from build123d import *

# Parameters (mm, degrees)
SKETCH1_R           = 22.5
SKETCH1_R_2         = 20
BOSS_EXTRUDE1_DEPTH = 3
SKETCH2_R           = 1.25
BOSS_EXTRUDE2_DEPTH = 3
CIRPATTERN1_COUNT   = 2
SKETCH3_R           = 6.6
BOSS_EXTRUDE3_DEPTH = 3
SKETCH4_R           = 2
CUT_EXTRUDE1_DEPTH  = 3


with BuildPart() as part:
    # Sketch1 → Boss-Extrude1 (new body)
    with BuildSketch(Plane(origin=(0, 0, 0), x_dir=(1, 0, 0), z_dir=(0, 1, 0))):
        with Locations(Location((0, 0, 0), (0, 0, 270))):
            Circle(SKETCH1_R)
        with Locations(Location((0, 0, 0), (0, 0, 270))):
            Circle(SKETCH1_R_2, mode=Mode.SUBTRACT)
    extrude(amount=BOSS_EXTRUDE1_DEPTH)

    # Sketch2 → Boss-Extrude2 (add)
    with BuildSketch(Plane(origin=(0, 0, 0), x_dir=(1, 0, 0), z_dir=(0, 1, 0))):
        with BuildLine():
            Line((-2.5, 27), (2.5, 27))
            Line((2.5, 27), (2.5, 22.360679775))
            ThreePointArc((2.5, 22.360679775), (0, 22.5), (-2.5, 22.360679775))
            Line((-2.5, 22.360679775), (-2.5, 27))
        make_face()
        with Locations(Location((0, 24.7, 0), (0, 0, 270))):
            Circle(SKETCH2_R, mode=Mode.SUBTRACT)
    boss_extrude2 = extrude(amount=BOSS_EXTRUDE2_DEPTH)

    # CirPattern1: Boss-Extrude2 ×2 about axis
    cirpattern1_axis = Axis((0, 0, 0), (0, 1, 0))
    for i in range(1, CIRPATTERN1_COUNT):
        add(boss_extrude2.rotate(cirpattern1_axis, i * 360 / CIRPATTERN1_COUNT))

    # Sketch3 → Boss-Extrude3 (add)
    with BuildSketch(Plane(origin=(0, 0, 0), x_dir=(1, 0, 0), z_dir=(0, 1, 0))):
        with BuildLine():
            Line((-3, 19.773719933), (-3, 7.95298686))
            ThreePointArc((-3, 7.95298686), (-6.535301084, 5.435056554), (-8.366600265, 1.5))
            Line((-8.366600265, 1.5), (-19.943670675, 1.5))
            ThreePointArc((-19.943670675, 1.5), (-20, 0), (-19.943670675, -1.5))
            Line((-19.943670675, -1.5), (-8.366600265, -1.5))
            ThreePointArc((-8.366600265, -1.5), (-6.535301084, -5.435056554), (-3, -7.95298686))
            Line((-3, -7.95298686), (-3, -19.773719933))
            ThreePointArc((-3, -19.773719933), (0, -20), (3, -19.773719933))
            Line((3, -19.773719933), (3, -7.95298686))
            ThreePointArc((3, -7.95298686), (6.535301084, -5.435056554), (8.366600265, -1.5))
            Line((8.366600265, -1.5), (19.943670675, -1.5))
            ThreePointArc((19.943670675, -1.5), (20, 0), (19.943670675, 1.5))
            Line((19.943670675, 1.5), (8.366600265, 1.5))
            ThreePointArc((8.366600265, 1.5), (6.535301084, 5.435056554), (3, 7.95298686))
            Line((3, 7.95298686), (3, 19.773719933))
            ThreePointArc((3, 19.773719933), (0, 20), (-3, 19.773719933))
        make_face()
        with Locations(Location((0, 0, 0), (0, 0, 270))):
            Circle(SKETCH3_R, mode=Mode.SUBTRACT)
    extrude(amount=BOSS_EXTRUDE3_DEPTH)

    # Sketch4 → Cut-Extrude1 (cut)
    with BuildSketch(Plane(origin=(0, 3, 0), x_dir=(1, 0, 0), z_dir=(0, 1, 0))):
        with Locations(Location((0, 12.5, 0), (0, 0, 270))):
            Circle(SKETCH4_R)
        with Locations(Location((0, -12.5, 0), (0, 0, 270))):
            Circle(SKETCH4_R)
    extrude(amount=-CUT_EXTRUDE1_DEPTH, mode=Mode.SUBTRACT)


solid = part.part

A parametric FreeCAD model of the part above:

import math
import FreeCAD as App
import Part
import Sketcher

V = App.Vector

doc = App.newDocument("Part")
params = doc.addObject("Spreadsheet::Sheet", "Params")
for row, (alias, value) in enumerate([
    ("sketch1_diameter", "45 mm"),
    ("sketch1_diameter2", "40 mm"),
    ("pad1_length", "3 mm"),
    ("sketch2_diameter", "2.5 mm"),
    ("sketch2_radius", "22.5 mm"),
    ("sketch2_width", "5 mm"),
    ("pad2_length", "3 mm"),
    ("sketch3_radius", "20 mm"),
    ("sketch3_diameter", "13.2 mm"),
    ("sketch3_radius2", "8.5 mm"),
    ("pad3_length", "3 mm"),
    ("sketch4_diameter", "4 mm"),
    ("pocket1_length", "3 mm"),
], start=1):
    params.set(f"A{row}", alias)
    params.set(f"B{row}", "=" + value)
    params.setAlias(f"B{row}", alias)

body = doc.addObject("PartDesign::Body", "Body")

sketch1 = body.newObject("Sketcher::SketchObject", "Sketch")
sketch1.AttachmentSupport = (doc.getObject("XZ_Plane"), [""])
sketch1.MapMode = "FlatFace"
sketch1.addGeometry([
    Part.Circle(V(0, 0, 0), V(0, 0, 1), 22.5),
    Part.Circle(V(0, 0, 0), V(0, 0, 1), 20),
], False)
sketch1.addConstraint([
    Sketcher.Constraint("Coincident", 0, 3, -1, 1),
    Sketcher.Constraint("Coincident", 1, 3, -1, 1),
    Sketcher.Constraint("Diameter", 0, 45.0),
    Sketcher.Constraint("Diameter", 1, 40.0),
])
sketch1.setExpression("Constraints[2]", "Params.sketch1_diameter")
sketch1.setExpression("Constraints[3]", "Params.sketch1_diameter2")
pad1 = body.newObject("PartDesign::Pad", "Pad")
pad1.Profile = sketch1
pad1.setExpression("Length", "Params.pad1_length")
pad1.Reversed = True

sketch2 = body.newObject("Sketcher::SketchObject", "Sketch001")
sketch2.AttachmentSupport = (doc.getObject("XZ_Plane"), [""])
sketch2.MapMode = "FlatFace"
sketch2.addGeometry([
    Part.LineSegment(V(2.5, -27, 0), V(-2.5, -27, 0)),
    Part.LineSegment(V(-2.5, -27, 0), V(-2.5, -22.36068, 0)),
    Part.ArcOfCircle(Part.Circle(V(0, 0, 0), V(0, 0, 1), 22.5), math.radians(-96.37937), math.radians(-83.62063)),
    Part.LineSegment(V(2.5, -22.36068, 0), V(2.5, -27, 0)),
    Part.Circle(V(0, -24.7, 0), V(0, 0, 1), 1.25),
], False)
sketch2.addConstraint([
    Sketcher.Constraint("Coincident", 0, 2, 1, 1),
    Sketcher.Constraint("Coincident", 1, 2, 2, 1),
    Sketcher.Constraint("Coincident", 2, 2, 3, 1),
    Sketcher.Constraint("Coincident", 3, 2, 0, 1),
    Sketcher.Constraint("Horizontal", 0),
    Sketcher.Constraint("Vertical", 1),
    Sketcher.Constraint("Vertical", 3),
    Sketcher.Constraint("Coincident", 2, 3, -1, 1),
    Sketcher.Constraint("PointOnObject", 4, 3, -2),
    Sketcher.Constraint("Horizontal", 1, 2, 2, 2),
    Sketcher.Constraint("Diameter", 4, 2.5),
    Sketcher.Constraint("Radius", 2, 22.5),
    Sketcher.Constraint("DistanceX", 0, 2, 0, 1, 5.0),
    Sketcher.Constraint("DistanceY", 0, 2, -1, 1, 27.0),
    Sketcher.Constraint("DistanceY", 4, 3, -1, 1, 24.7),
])
sketch2.setExpression("Constraints[10]", "Params.sketch2_diameter")
sketch2.setExpression("Constraints[11]", "Params.sketch2_radius")
sketch2.setExpression("Constraints[12]", "Params.sketch2_width")
pad2 = body.newObject("PartDesign::Pad", "Pad001")
pad2.Profile = sketch2
pad2.setExpression("Length", "Params.pad2_length")
pad2.Reversed = True
doc.recompute()

polarpattern = body.newObject("PartDesign::PolarPattern", "PolarPattern")
polarpattern.Originals = [pad2]
polarpattern.Axis = (doc.getObject("Y_Axis"), [""])
polarpattern.Angle = 360
polarpattern.Occurrences = 2
body.Tip = polarpattern

sketch3 = body.newObject("Sketcher::SketchObject", "Sketch002")
sketch3.AttachmentSupport = (doc.getObject("XZ_Plane"), [""])
sketch3.MapMode = "FlatFace"
sketch3.addGeometry([
    Part.LineSegment(V(-3, -19.77372, 0), V(-3, -7.952987, 0)),
    Part.ArcOfCircle(Part.Circle(V(0, 0, 0), V(0, 0, 1), 8.5), math.radians(-169.835751), math.radians(-110.667316)),
    Part.LineSegment(V(-8.3666, -1.5, 0), V(-19.943671, -1.5, 0)),
    Part.ArcOfCircle(Part.Circle(V(0, 0, 0), V(0, 0, 1), 20), math.radians(175.698778), math.radians(184.301222)),
    Part.LineSegment(V(-19.943671, 1.5, 0), V(-8.3666, 1.5, 0)),
    Part.ArcOfCircle(Part.Circle(V(0, 0, 0), V(0, 0, 1), 8.5), math.radians(110.667316), math.radians(169.835751)),
    Part.LineSegment(V(-3, 7.952987, 0), V(-3, 19.77372, 0)),
    Part.ArcOfCircle(Part.Circle(V(0, 0, 0), V(0, 0, 1), 20), math.radians(81.373073), math.radians(98.626927)),
    Part.LineSegment(V(3, 19.77372, 0), V(3, 7.952987, 0)),
    Part.ArcOfCircle(Part.Circle(V(0, 0, 0), V(0, 0, 1), 8.5), math.radians(10.164249), math.radians(69.332684)),
    Part.LineSegment(V(8.3666, 1.5, 0), V(19.943671, 1.5, 0)),
    Part.ArcOfCircle(Part.Circle(V(0, 0, 0), V(0, 0, 1), 20), math.radians(-4.301222), math.radians(4.301222)),
    Part.LineSegment(V(19.943671, -1.5, 0), V(8.3666, -1.5, 0)),
    Part.ArcOfCircle(Part.Circle(V(0, 0, 0), V(0, 0, 1), 8.5), math.radians(-69.332684), math.radians(-10.164249)),
    Part.LineSegment(V(3, -7.952987, 0), V(3, -19.77372, 0)),
    Part.ArcOfCircle(Part.Circle(V(0, 0, 0), V(0, 0, 1), 20), math.radians(-98.626927), math.radians(-81.373073)),
    Part.Circle(V(0, 0, 0), V(0, 0, 1), 6.6),
], False)
sketch3.addConstraint([
    Sketcher.Constraint("Coincident", 0, 2, 1, 2),
    Sketcher.Constraint("Coincident", 1, 1, 2, 1),
    Sketcher.Constraint("Coincident", 2, 2, 3, 2),
    Sketcher.Constraint("Coincident", 3, 1, 4, 1),
    Sketcher.Constraint("Coincident", 4, 2, 5, 2),
    Sketcher.Constraint("Coincident", 5, 1, 6, 1),
    Sketcher.Constraint("Coincident", 6, 2, 7, 2),
    Sketcher.Constraint("Coincident", 7, 1, 8, 1),
    Sketcher.Constraint("Coincident", 8, 2, 9, 2),
    Sketcher.Constraint("Coincident", 9, 1, 10, 1),
    Sketcher.Constraint("Coincident", 10, 2, 11, 2),
    Sketcher.Constraint("Coincident", 11, 1, 12, 1),
    Sketcher.Constraint("Coincident", 12, 2, 13, 2),
    Sketcher.Constraint("Coincident", 13, 1, 14, 1),
    Sketcher.Constraint("Coincident", 14, 2, 15, 2),
    Sketcher.Constraint("Coincident", 15, 1, 0, 1),
    Sketcher.Constraint("Vertical", 0),
    Sketcher.Constraint("Horizontal", 2),
    Sketcher.Constraint("Horizontal", 4),
    Sketcher.Constraint("Vertical", 6),
    Sketcher.Constraint("Vertical", 8),
    Sketcher.Constraint("Horizontal", 10),
    Sketcher.Constraint("Horizontal", 12),
    Sketcher.Constraint("Vertical", 14),
    Sketcher.Constraint("Coincident", 1, 3, -1, 1),
    Sketcher.Constraint("Coincident", 3, 3, -1, 1),
    Sketcher.Constraint("Coincident", 5, 3, -1, 1),
    Sketcher.Constraint("Coincident", 7, 3, -1, 1),
    Sketcher.Constraint("Coincident", 9, 3, -1, 1),
    Sketcher.Constraint("Coincident", 11, 3, -1, 1),
    Sketcher.Constraint("Coincident", 13, 3, -1, 1),
    Sketcher.Constraint("Coincident", 15, 3, -1, 1),
    Sketcher.Constraint("Coincident", 16, 3, -1, 1),
    Sketcher.Constraint("Equal", 1, 5),
    Sketcher.Constraint("Equal", 3, 7),
    Sketcher.Constraint("Equal", 5, 9),
    Sketcher.Constraint("Equal", 7, 11),
    Sketcher.Constraint("Equal", 9, 13),
    Sketcher.Constraint("Equal", 11, 15),
    Sketcher.Constraint("Horizontal", 6, 2, 7, 1),
    Sketcher.Constraint("Horizontal", 4, 2, 9, 1),
    Sketcher.Constraint("Horizontal", 2, 2, 11, 1),
    Sketcher.Constraint("Horizontal", 0, 2, 13, 1),
    Sketcher.Constraint("Vertical", 2, 2, 3, 1),
    Sketcher.Constraint("Vertical", 0, 2, 5, 1),
    Sketcher.Constraint("Radius", 3, 20.0),
    Sketcher.Constraint("Diameter", 16, 13.2),
    Sketcher.Constraint("Radius", 1, 8.5),
    Sketcher.Constraint("DistanceX", 0, 2, -1, 1, 3.0),
    Sketcher.Constraint("DistanceY", 2, 2, 3, 1, 3.0),
])
sketch3.setExpression("Constraints[45]", "Params.sketch3_radius")
sketch3.setExpression("Constraints[46]", "Params.sketch3_diameter")
sketch3.setExpression("Constraints[47]", "Params.sketch3_radius2")
pad3 = body.newObject("PartDesign::Pad", "Pad002")
pad3.Profile = sketch3
pad3.setExpression("Length", "Params.pad3_length")
pad3.Reversed = True

sketch4 = body.newObject("Sketcher::SketchObject", "Sketch003")
sketch4.AttachmentSupport = (doc.getObject("XZ_Plane"), [""])
sketch4.MapMode = "FlatFace"
sketch4.AttachmentOffset = App.Placement(V(0, 0, -3), App.Rotation())
sketch4.addGeometry([
    Part.Circle(V(0, -12.5, 0), V(0, 0, 1), 2),
    Part.Circle(V(0, 12.5, 0), V(0, 0, 1), 2),
], False)
sketch4.addConstraint([
    Sketcher.Constraint("Equal", 0, 1),
    Sketcher.Constraint("Symmetric", 0, 3, 1, 3, -1, 1),
    Sketcher.Constraint("PointOnObject", 0, 3, -2),
    Sketcher.Constraint("Diameter", 0, 4.0),
    Sketcher.Constraint("DistanceY", 0, 3, 1, 3, 25.0),
])
sketch4.setExpression("Constraints[3]", "Params.sketch4_diameter")
pocket1 = body.newObject("PartDesign::Pocket", "Pocket")
pocket1.Profile = sketch4
pocket1.setExpression("Length", "Params.pocket1_length")
pocket1.Reversed = True

doc.recompute()
